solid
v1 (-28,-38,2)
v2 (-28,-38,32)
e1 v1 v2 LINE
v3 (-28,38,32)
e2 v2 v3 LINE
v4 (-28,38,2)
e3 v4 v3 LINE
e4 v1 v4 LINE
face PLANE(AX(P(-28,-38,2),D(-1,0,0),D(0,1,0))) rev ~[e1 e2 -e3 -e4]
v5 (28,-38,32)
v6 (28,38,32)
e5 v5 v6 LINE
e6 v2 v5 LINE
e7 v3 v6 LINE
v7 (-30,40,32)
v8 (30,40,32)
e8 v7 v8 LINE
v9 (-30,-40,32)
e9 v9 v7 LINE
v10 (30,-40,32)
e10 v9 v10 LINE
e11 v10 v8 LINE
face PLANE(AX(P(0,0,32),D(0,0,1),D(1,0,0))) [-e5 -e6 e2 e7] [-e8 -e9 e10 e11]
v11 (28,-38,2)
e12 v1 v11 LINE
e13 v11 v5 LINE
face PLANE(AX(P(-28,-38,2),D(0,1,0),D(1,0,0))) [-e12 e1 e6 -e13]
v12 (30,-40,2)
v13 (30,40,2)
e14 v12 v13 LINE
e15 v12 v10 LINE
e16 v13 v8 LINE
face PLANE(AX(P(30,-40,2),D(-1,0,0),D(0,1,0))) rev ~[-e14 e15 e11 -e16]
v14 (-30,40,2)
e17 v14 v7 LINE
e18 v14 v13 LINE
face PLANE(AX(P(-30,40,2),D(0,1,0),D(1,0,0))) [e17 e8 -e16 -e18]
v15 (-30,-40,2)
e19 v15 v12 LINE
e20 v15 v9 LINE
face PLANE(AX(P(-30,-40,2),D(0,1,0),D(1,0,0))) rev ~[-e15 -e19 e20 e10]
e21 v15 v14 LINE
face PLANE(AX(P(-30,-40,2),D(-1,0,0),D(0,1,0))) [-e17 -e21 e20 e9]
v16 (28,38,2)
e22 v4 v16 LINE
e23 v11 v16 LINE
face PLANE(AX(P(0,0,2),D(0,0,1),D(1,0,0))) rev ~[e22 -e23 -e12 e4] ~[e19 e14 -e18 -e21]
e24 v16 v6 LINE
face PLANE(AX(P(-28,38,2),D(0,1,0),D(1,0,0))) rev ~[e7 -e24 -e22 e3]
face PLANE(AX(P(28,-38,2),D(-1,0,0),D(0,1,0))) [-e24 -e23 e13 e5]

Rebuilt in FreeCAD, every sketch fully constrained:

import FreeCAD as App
import Part
import Sketcher


def add_polygon(sketch, points):
    """Adds a closed chain of lines whose ends are joined by coincident constraints."""
    first, n = sketch.GeometryCount, len(points)
    for a, b in zip(points, points[1:] + points[:1]):
        sketch.addGeometry(Part.LineSegment(App.Vector(*a, 0), App.Vector(*b, 0)), False)
    for i in range(n):
        sketch.addConstraint(Sketcher.Constraint("Coincident", first + i, 2, first + (i + 1) % n, 1))

doc = App.newDocument("Part")
params = doc.addObject("Spreadsheet::Sheet", "Params")
for row, (alias, value) in enumerate([
    ("sketch1_width", "60 mm"),
    ("sketch1_width2", "56 mm"),
    ("sketch1_height", "80 mm"),
    ("sketch1_height2", "76 mm"),
    ("pad1_length", "30 mm"),
], start=1):
    params.set(f"A{row}", alias)
    params.set(f"B{row}", "=" + value)
    params.setAlias(f"B{row}", alias)

body = doc.addObject("PartDesign::Body", "Body")

sketch1 = body.newObject("Sketcher::SketchObject", "Sketch")
sketch1.AttachmentSupport = (doc.getObject("XY_Plane"), [""])
sketch1.MapMode = "FlatFace"
sketch1.AttachmentOffset = App.Placement(App.Vector(0, 0, 2), App.Rotation())
add_polygon(sketch1, [(-30, 40), (-30, -40), (30, -40), (30, 40)])
add_polygon(sketch1, [(28, -38), (-28, -38), (-28, 38), (28, 38)])
sketch1.addConstraint([
    Sketcher.Constraint("Vertical", 0),
    Sketcher.Constraint("Horizontal", 1),
    Sketcher.Constraint("Vertical", 2),
    Sketcher.Constraint("Horizontal", 3),
    Sketcher.Constraint("Horizontal", 4),
    Sketcher.Constraint("Vertical", 5),
    Sketcher.Constraint("Horizontal", 6),
    Sketcher.Constraint("Vertical", 7),
    Sketcher.Constraint("Symmetric", 0, 2, 2, 2, -1, 1),
    Sketcher.Constraint("Symmetric", 4, 2, 6, 2, -1, 1),
    Sketcher.Constraint("DistanceX", 1, 1, 1, 2, 60.0),
    Sketcher.Constraint("DistanceX", 4, 2, 4, 1, 56.0),
    Sketcher.Constraint("DistanceY", 0, 2, 0, 1, 80.0),
    Sketcher.Constraint("DistanceY", 5, 1, 5, 2, 76.0),
])
sketch1.setExpression("Constraints[18]", "Params.sketch1_width")
sketch1.setExpression("Constraints[19]", "Params.sketch1_width2")
sketch1.setExpression("Constraints[20]", "Params.sketch1_height")
sketch1.setExpression("Constraints[21]", "Params.sketch1_height2")
pad1 = body.newObject("PartDesign::Pad", "Pad")
pad1.Profile = sketch1
pad1.setExpression("Length", "Params.pad1_length")

doc.recompute()
